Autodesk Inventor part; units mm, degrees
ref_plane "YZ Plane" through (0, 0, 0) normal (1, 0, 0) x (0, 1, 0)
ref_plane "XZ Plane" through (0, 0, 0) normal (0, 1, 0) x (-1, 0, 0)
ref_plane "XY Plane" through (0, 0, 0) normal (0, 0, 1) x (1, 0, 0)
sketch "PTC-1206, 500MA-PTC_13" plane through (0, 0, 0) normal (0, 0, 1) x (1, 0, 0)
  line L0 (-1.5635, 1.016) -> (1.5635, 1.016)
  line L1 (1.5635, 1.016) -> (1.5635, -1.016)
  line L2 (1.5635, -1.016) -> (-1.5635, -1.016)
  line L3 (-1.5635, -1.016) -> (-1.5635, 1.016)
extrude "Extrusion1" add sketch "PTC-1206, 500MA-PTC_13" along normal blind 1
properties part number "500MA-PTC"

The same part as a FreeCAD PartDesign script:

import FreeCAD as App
import Part
import Sketcher
from FreeCAD import Vector
Q = App.Units.Quantity


def add_polygon(sketch, points):
    """Adds a closed chain of lines whose ends are joined by coincident constraints."""
    first, n = sketch.GeometryCount, len(points)
    for a, b in zip(points, points[1:] + points[:1]):
        sketch.addGeometry(Part.LineSegment(App.Vector(*a, 0), App.Vector(*b, 0)), False)
    for i in range(n):
        sketch.addConstraint(Sketcher.Constraint("Coincident", first + i, 2, first + (i + 1) % n, 1))

doc = App.newDocument("Part")
body = doc.addObject("PartDesign::Body", "Body")

# Sketch on XY plane
sketch1 = body.newObject("Sketcher::SketchObject", "Sketch")
sketch1.AttachmentSupport = (doc.getObject("XY_Plane"), [""])
sketch1.MapMode = "FlatFace"
add_polygon(sketch1, [(1.6, 1), (-1.6, 1), (-1.6, -1), (1.6, -1)])  # lines 0-3
sketch1.addConstraint([
    Sketcher.Constraint("Horizontal", 0),
    Sketcher.Constraint("Vertical", 1),
    Sketcher.Constraint("Horizontal", 2),
    Sketcher.Constraint("Vertical", 3),
    Sketcher.Constraint("Symmetric", 0, 2, 2, 2, -1, 1),
    Sketcher.Constraint("DistanceX", 0, 2, 0, 1, Q("3.127 mm")),
    Sketcher.Constraint("DistanceY", 1, 2, 1, 1, Q("2.032 mm")),
])
pad1 = body.newObject("PartDesign::Pad", "Pad")
pad1.Profile = sketch1
pad1.Length = 1

doc.recompute()
